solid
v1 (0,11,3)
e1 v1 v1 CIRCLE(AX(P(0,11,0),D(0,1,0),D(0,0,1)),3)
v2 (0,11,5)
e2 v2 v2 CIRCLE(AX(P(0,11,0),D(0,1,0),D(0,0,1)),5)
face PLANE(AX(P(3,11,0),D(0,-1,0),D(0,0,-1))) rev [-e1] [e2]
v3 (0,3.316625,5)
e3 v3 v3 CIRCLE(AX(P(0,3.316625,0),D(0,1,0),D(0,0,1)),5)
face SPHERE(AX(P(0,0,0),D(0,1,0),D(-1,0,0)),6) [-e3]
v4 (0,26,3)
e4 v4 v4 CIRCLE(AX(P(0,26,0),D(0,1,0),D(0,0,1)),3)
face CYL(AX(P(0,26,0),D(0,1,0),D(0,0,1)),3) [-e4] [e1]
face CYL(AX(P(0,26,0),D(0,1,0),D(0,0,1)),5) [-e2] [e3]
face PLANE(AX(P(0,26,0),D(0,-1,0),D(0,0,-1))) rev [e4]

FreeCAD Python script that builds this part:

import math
import FreeCAD as App
import Part
import Sketcher
from FreeCAD import Vector

doc = App.newDocument("Part")
params = doc.addObject("Spreadsheet::Sheet", "Params")
for row, (alias, value) in enumerate([
    ("sketch1_radius", "6 mm"),
    ("sketch1_width", "3 mm"),
    ("sketch1_width2", "2 mm"),
    ("sketch1_height", "32 mm"),
    ("sketch1_height2", "15 mm"),
    ("revolution_angle", "360 deg"),
], start=1):
    params.set(f"A{row}", alias)
    params.set(f"B{row}", "=" + value)
    params.setAlias(f"B{row}", alias)

body = doc.addObject("PartDesign::Body", "Body")

# Sketch on XY plane
sketch1 = doc.addObject("Sketcher::SketchObject", "Sketch")
body.addObject(sketch1)
sketch1.AttachmentSupport = (doc.XY_Plane, [""])
sketch1.MapMode = "FlatFace"
sketch1.addGeometry(Part.LineSegment(Vector(3, 26, 0), Vector(0, 26, 0)), False)
sketch1.addGeometry(Part.LineSegment(Vector(0, 26, 0), Vector(0, -6, 0)), False)
sketch1.addGeometry(Part.ArcOfCircle(Part.Circle(Vector(0, 0, 0), Vector(0, 0, 1), 6), math.radians(-90), math.radians(33.55731)), False)
sketch1.addGeometry(Part.LineSegment(Vector(5, 3.316625, 0), Vector(5, 11, 0)), False)
sketch1.addGeometry(Part.LineSegment(Vector(5, 11, 0), Vector(3, 11, 0)), False)
sketch1.addGeometry(Part.LineSegment(Vector(3, 11, 0), Vector(3, 26, 0)), False)
sketch1.addConstraint(Sketcher.Constraint("Coincident", 0, 2, 1, 1))
sketch1.addConstraint(Sketcher.Constraint("Coincident", 1, 2, 2, 1))
sketch1.addConstraint(Sketcher.Constraint("Coincident", 2, 2, 3, 1))
sketch1.addConstraint(Sketcher.Constraint("Coincident", 3, 2, 4, 1))
sketch1.addConstraint(Sketcher.Constraint("Coincident", 4, 2, 5, 1))
sketch1.addConstraint(Sketcher.Constraint("Coincident", 5, 2, 0, 1))
sketch1.addConstraint(Sketcher.Constraint("Horizontal", 0))
sketch1.addConstraint(Sketcher.Constraint("Vertical", 1))
sketch1.addConstraint(Sketcher.Constraint("Vertical", 3))
sketch1.addConstraint(Sketcher.Constraint("Horizontal", 4))
sketch1.addConstraint(Sketcher.Constraint("Vertical", 5))
sketch1.addConstraint(Sketcher.Constraint("Coincident", 2, 3, -1, 1))
sketch1.addConstraint(Sketcher.Constraint("PointOnObject", 0, 2, -2))
sketch1.addConstraint(Sketcher.Constraint("Radius", 2, 6.0))
sketch1.addConstraint(Sketcher.Constraint("DistanceX", 0, 2, 0, 1, 3.0))
sketch1.addConstraint(Sketcher.Constraint("DistanceX", 4, 2, 4, 1, 2.0))
sketch1.addConstraint(Sketcher.Constraint("DistanceY", 1, 2, 1, 1, 32.0))
sketch1.addConstraint(Sketcher.Constraint("DistanceY", 5, 1, 5, 2, 15.0))
sketch1.setExpression("Constraints[13]", "Params.sketch1_radius")
sketch1.setExpression("Constraints[14]", "Params.sketch1_width")
sketch1.setExpression("Constraints[15]", "Params.sketch1_width2")
sketch1.setExpression("Constraints[16]", "Params.sketch1_height")
sketch1.setExpression("Constraints[17]", "Params.sketch1_height2")
revolution = doc.addObject("PartDesign::Revolution", "Revolution")
body.addObject(revolution)
revolution.Profile = sketch1
revolution.ReferenceAxis = (sketch1, ["V_Axis"])
revolution.setExpression("Angle", "Params.revolution_angle")

doc.recompute()
